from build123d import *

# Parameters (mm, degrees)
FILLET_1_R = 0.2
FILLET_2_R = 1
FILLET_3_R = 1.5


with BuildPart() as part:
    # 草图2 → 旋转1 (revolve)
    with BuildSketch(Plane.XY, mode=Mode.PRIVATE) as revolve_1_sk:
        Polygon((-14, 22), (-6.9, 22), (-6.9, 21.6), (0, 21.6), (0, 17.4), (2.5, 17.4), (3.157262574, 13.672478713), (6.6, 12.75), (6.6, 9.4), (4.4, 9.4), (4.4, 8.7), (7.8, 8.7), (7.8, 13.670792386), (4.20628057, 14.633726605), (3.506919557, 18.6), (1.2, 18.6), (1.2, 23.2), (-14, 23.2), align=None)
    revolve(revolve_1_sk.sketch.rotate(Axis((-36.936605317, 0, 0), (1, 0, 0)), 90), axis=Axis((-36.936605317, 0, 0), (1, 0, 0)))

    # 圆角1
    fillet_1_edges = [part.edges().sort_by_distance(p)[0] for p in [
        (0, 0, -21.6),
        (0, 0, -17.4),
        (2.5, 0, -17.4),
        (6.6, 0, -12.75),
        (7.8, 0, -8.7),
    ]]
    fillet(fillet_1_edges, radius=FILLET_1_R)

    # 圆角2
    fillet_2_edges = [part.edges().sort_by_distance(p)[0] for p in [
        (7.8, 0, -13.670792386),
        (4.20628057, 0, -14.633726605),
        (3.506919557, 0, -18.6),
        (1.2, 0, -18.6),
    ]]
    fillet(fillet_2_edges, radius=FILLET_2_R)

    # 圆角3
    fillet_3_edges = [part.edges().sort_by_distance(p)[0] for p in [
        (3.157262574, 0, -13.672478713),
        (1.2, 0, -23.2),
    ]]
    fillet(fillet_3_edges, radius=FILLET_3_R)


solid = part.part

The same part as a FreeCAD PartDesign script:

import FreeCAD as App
import Part
import Sketcher
from FreeCAD import Vector
Q = App.Units.Quantity


def edges_at(feature, points):
    """Names of the edges that pass closest to the given points."""
    edges = feature.Shape.Edges
    near = lambda p: min(range(len(edges)), key=lambda i: edges[i].distToShape(Part.Vertex(*p))[0])
    return sorted({f"Edge{near(p) + 1}" for p in points})

doc = App.newDocument("Part")
body = doc.addObject("PartDesign::Body", "Body")

# Sketch on XY plane
sketch1 = body.newObject("Sketcher::SketchObject", "Sketch")
sketch1.AttachmentSupport = (doc.getObject("XY_Plane"), [""])
sketch1.MapMode = "FlatFace"
sketch1.addGeometry([
    Part.LineSegment(Vector(-14, 22, 0), Vector(-6.9, 22, 0)),  # 0
    Part.LineSegment(Vector(-6.9, 22, 0), Vector(-6.9, 21.6, 0)),  # 1
    Part.LineSegment(Vector(-6.9, 21.6, 0), Vector(0, 21.6, 0)),  # 2
    Part.LineSegment(Vector(0, 21.6, 0), Vector(0, 17.4, 0)),  # 3
    Part.LineSegment(Vector(0, 17.4, 0), Vector(2.5, 17.4, 0)),  # 4
    Part.LineSegment(Vector(2.5, 17.4, 0), Vector(3.16, 13.67, 0)),  # 5
    Part.LineSegment(Vector(3.16, 13.67, 0), Vector(6.6, 12.75, 0)),  # 6
    Part.LineSegment(Vector(6.6, 12.75, 0), Vector(6.6, 9.4, 0)),  # 7
    Part.LineSegment(Vector(6.6, 9.4, 0), Vector(4.4, 9.4, 0)),  # 8
    Part.LineSegment(Vector(4.4, 9.4, 0), Vector(4.4, 8.7, 0)),  # 9
    Part.LineSegment(Vector(4.4, 8.7, 0), Vector(7.8, 8.7, 0)),  # 10
    Part.LineSegment(Vector(7.8, 8.7, 0), Vector(7.8, 13.67, 0)),  # 11
    Part.LineSegment(Vector(7.8, 13.67, 0), Vector(4.21, 14.63, 0)),  # 12
    Part.LineSegment(Vector(4.21, 14.63, 0), Vector(3.51, 18.6, 0)),  # 13
    Part.LineSegment(Vector(3.51, 18.6, 0), Vector(1.2, 18.6, 0)),  # 14
    Part.LineSegment(Vector(1.2, 18.6, 0), Vector(1.2, 23.2, 0)),  # 15
    Part.LineSegment(Vector(1.2, 23.2, 0), Vector(-14, 23.2, 0)),  # 16
    Part.LineSegment(Vector(-14, 23.2, 0), Vector(-14, 22, 0)),  # 17
], False)
sketch1.addConstraint([
    Sketcher.Constraint("Coincident", 0, 2, 1, 1),
    Sketcher.Constraint("Coincident", 1, 2, 2, 1),
    Sketcher.Constraint("Coincident", 2, 2, 3, 1),
    Sketcher.Constraint("Coincident", 3, 2, 4, 1),
    Sketcher.Constraint("Coincident", 4, 2, 5, 1),
    Sketcher.Constraint("Coincident", 5, 2, 6, 1),
    Sketcher.Constraint("Coincident", 6, 2, 7, 1),
    Sketcher.Constraint("Coincident", 7, 2, 8, 1),
    Sketcher.Constraint("Coincident", 8, 2, 9, 1),
    Sketcher.Constraint("Coincident", 9, 2, 10, 1),
    Sketcher.Constraint("Coincident", 10, 2, 11, 1),
    Sketcher.Constraint("Coincident", 11, 2, 12, 1),
    Sketcher.Constraint("Coincident", 12, 2, 13, 1),
    Sketcher.Constraint("Coincident", 13, 2, 14, 1),
    Sketcher.Constraint("Coincident", 14, 2, 15, 1),
    Sketcher.Constraint("Coincident", 15, 2, 16, 1),
    Sketcher.Constraint("Coincident", 16, 2, 17, 1),
    Sketcher.Constraint("Coincident", 17, 2, 0, 1),
    Sketcher.Constraint("Horizontal", 0),
    Sketcher.Constraint("Vertical", 1),
    Sketcher.Constraint("Horizontal", 2),
    Sketcher.Constraint("Vertical", 3),
    Sketcher.Constraint("Horizontal", 4),
    Sketcher.Constraint("Vertical", 7),
    Sketcher.Constraint("Horizontal", 8),
    Sketcher.Constraint("Vertical", 9),
    Sketcher.Constraint("Horizontal", 10),
    Sketcher.Constraint("Vertical", 11),
    Sketcher.Constraint("Horizontal", 14),
    Sketcher.Constraint("Vertical", 15),
    Sketcher.Constraint("Horizontal", 16),
    Sketcher.Constraint("Vertical", 17),
    Sketcher.Constraint("PointOnObject", 2, 2, -2),
    Sketcher.Constraint("Parallel", 6, 12),
    Sketcher.Constraint("Parallel", 5, 13),
    Sketcher.Constraint("Angle", 5, Q("-80 deg")),
    Sketcher.Constraint("Angle", 6, Q("-15 deg")),
    Sketcher.Constraint("DistanceX", 0, 1, 0, 2, Q("7.1 mm")),
    Sketcher.Constraint("DistanceX", 2, 1, 2, 2, Q("6.9 mm")),
    Sketcher.Constraint("DistanceX", 4, 1, 4, 2, Q("2.5 mm")),
    Sketcher.Constraint("DistanceX", 8, 2, 8, 1, Q("2.2 mm")),
    Sketcher.Constraint("DistanceX", 10, 1, 10, 2, Q("3.4 mm")),
    Sketcher.Constraint("DistanceX", 16, 2, 16, 1, Q("15.2 mm")),
    Sketcher.Constraint("DistanceY", 1, 2, 1, 1, Q("0.4 mm")),
    Sketcher.Constraint("DistanceY", 3, 2, 3, 1, Q("4.2 mm")),
    Sketcher.Constraint("DistanceY", 9, 2, 9, 1, Q("0.7 mm")),
    Sketcher.Constraint("DistanceY", 15, 1, 15, 2, Q("4.6 mm")),
    Sketcher.Constraint("DistanceY", 17, 2, 17, 1, Q("1.2 mm")),
    Sketcher.Constraint("DistanceY", -1, 1, 0, 2, Q("22 mm")),
    Sketcher.Constraint("DistanceY", 7, 2, 4, 2, Q("8 mm")),
    Sketcher.Constraint("DistanceY", 7, 2, 7, 1, Q("3.35 mm")),
    Sketcher.Constraint("DistanceX", -1, 1, 6, 2, Q("6.6 mm")),
    Sketcher.Constraint("DistanceX", 14, 2, 14, 1, Q("2.30692 mm")),
    Sketcher.Constraint("Distance", 13, Q("4.02746 mm")),
])
revolution = body.newObject("PartDesign::Revolution", "Revolution")
revolution.Profile = sketch1
revolution.ReferenceAxis = (sketch1, ["H_Axis"])
revolution.Angle = 360
doc.recompute()

fillet = body.newObject("PartDesign::Fillet", "Fillet")
fillet.Base = (revolution, edges_at(revolution, [
    (0, 0, -21.6),
    (0, 0, -17.4),
    (2.5, 0, -17.4),
    (6.6, 0, -12.75),
    (7.8, 0, -8.7),
]))
fillet.Radius = 0.2
doc.recompute()

fillet2 = body.newObject("PartDesign::Fillet", "Fillet001")
fillet2.Base = (fillet, edges_at(fillet, [
    (7.8, 0, -13.671),
    (4.206, 0, -14.634),
    (3.507, 0, -18.6),
    (1.2, 0, -18.6),
]))
fillet2.Radius = 1
doc.recompute()

fillet3 = body.newObject("PartDesign::Fillet", "Fillet002")
fillet3.Base = (fillet2, edges_at(fillet2, [(3.157, 0, -13.672), (1.2, 0, -23.2)]))
fillet3.Radius = 1.5

doc.recompute()
